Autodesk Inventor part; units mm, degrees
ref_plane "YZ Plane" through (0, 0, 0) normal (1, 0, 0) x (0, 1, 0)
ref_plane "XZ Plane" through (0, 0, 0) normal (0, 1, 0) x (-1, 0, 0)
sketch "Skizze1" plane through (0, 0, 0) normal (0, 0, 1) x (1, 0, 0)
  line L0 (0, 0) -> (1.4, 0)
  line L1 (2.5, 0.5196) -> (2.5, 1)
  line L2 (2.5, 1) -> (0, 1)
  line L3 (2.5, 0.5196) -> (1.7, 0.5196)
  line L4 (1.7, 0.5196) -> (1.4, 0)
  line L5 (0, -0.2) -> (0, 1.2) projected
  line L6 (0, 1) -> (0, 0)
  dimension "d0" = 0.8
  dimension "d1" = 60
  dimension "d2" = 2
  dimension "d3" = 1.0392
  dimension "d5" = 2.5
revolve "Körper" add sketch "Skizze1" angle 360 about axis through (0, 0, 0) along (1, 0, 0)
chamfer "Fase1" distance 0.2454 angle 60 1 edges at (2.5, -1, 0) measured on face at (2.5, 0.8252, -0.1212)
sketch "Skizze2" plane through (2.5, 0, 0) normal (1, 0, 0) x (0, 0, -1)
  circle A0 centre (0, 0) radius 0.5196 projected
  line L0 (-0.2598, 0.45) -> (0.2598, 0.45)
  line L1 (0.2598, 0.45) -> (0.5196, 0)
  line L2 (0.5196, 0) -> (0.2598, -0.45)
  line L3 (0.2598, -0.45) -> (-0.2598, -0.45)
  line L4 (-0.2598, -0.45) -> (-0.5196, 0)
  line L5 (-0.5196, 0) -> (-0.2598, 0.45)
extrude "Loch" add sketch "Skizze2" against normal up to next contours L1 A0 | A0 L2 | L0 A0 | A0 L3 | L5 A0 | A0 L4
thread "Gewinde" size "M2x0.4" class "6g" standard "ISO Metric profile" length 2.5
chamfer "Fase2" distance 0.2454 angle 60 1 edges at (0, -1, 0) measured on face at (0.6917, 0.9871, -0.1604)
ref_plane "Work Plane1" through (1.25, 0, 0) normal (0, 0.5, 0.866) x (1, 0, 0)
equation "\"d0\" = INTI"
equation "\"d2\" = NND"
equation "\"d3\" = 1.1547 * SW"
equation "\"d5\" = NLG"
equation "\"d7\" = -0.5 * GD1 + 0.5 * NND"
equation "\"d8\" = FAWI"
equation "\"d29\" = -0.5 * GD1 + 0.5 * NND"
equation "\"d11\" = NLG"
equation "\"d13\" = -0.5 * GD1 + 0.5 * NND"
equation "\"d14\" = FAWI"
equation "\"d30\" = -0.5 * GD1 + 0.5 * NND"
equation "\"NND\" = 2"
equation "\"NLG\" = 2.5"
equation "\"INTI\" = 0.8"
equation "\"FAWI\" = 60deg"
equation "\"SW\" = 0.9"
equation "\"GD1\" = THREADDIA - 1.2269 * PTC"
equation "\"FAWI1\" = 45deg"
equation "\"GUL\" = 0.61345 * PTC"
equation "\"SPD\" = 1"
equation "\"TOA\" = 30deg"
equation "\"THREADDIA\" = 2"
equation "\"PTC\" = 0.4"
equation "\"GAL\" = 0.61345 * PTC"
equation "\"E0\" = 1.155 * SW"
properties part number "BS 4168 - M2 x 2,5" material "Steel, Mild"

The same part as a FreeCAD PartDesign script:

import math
import FreeCAD as App
import Part
import Sketcher

V = App.Vector
Q = App.Units.Quantity


def edges_at(feature, points):
    """Names of the edges that pass closest to the given points."""
    edges = feature.Shape.Edges
    near = lambda p: min(range(len(edges)), key=lambda i: edges[i].distToShape(Part.Vertex(*p))[0])
    return sorted({f"Edge{near(p) + 1}" for p in points})


def add_polygon(sketch, points):
    """Adds a closed chain of lines whose ends are joined by coincident constraints."""
    first, n = sketch.GeometryCount, len(points)
    for a, b in zip(points, points[1:] + points[:1]):
        sketch.addGeometry(Part.LineSegment(App.Vector(*a, 0), App.Vector(*b, 0)), False)
    for i in range(n):
        sketch.addConstraint(Sketcher.Constraint("Coincident", first + i, 2, first + (i + 1) % n, 1))

doc = App.newDocument("Part")
params = doc.addObject("Spreadsheet::Sheet", "Params")
for row, (alias, value) in enumerate([
    ("sketch1_width", "0.8 mm"),
    ("sketch1_width2", "2.5 mm"),
    ("sketch1_height", "1 mm"),
    ("sketch1_width3", "1.4 mm"),
    ("revolution_angle", "360 deg"),
    ("chamfer_size", "0.2454 mm"),
    ("chamfer2_size", "0.2454 mm"),
], start=1):
    params.set(f"A{row}", alias)
    params.set(f"B{row}", "=" + value)
    params.setAlias(f"B{row}", alias)

body = doc.addObject("PartDesign::Body", "Body")

sketch1 = body.newObject("Sketcher::SketchObject", "Sketch")
sketch1.AttachmentSupport = (doc.getObject("XY_Plane"), [""])
sketch1.MapMode = "FlatFace"
add_polygon(sketch1, [(0, 1), (0, 0), (1.4, 0), (1.7, 0.5196), (2.5, 0.5196), (2.5, 1)])
sketch1.addConstraint(Sketcher.Constraint("Vertical", 0))
sketch1.addConstraint(Sketcher.Constraint("Horizontal", 1))
sketch1.addConstraint(Sketcher.Constraint("Horizontal", 3))
sketch1.addConstraint(Sketcher.Constraint("Vertical", 4))
sketch1.addConstraint(Sketcher.Constraint("Horizontal", 5))
sketch1.addConstraint(Sketcher.Constraint("Coincident", 0, 2, -1, 1))
sketch1.addConstraint(Sketcher.Constraint("DistanceX", 3, 1, 3, 2, 0.8))
sketch1.addConstraint(Sketcher.Constraint("DistanceX", 5, 2, 5, 1, 2.5))
sketch1.addConstraint(Sketcher.Constraint("DistanceY", 0, 2, 0, 1, 1.0))
sketch1.addConstraint(Sketcher.Constraint("Angle", 2, Q("59.9993 deg")))
sketch1.addConstraint(Sketcher.Constraint("DistanceX", 1, 1, 1, 2, 1.4))
sketch1.setExpression("Constraints[12]", "Params.sketch1_width")
sketch1.setExpression("Constraints[13]", "Params.sketch1_width2")
sketch1.setExpression("Constraints[14]", "Params.sketch1_height")
sketch1.setExpression("Constraints[16]", "Params.sketch1_width3")
revolution = body.newObject("PartDesign::Revolution", "Revolution")
revolution.Profile = sketch1
revolution.ReferenceAxis = (sketch1, ["H_Axis"])
revolution.setExpression("Angle", "Params.revolution_angle")
doc.recompute()

chamfer = body.newObject("PartDesign::Chamfer", "Chamfer")
chamfer.Base = (revolution, edges_at(revolution, [(2.5, -1, 0)]))
chamfer.ChamferType = "Distance and Angle"
chamfer.setExpression("Size", "Params.chamfer_size")
chamfer.Angle = 60

sketch2 = body.newObject("Sketcher::SketchObject", "Sketch001")
sketch2.AttachmentSupport = (doc.getObject("YZ_Plane"), [""])
sketch2.MapMode = "FlatFace"
sketch2.AttachmentOffset = App.Placement(V(0, 0, 2.5), App.Rotation())
sketch2.addGeometry(Part.LineSegment(V(0.45, -0.2598, 0), V(0, -0.5196, 0)), False)
sketch2.addGeometry(Part.ArcOfCircle(Part.Circle(V(0, 0, 0), V(0, 0, 1), 0.5196), math.radians(-90), math.radians(-29.999272)), False)
sketch2.addGeometry(Part.ArcOfCircle(Part.Circle(V(0, 0, 0), V(0, 0, 1), 0.5196), math.radians(-150.000728), math.radians(-90)), False)
sketch2.addGeometry(Part.LineSegment(V(0, -0.5196, 0), V(-0.45, -0.2598, 0)), False)
sketch2.addGeometry(Part.LineSegment(V(0.45, 0.2598, 0), V(0.45, -0.2598, 0)), False)
sketch2.addGeometry(Part.ArcOfCircle(Part.Circle(V(0, 0, 0), V(0, 0, 1), 0.5196), math.radians(-29.999272), math.radians(29.999272)), False)
sketch2.addGeometry(Part.ArcOfCircle(Part.Circle(V(0, 0, 0), V(0, 0, 1), 0.5196), math.radians(150.000728), math.radians(209.999272)), False)
sketch2.addGeometry(Part.LineSegment(V(-0.45, 0.2598, 0), V(-0.45, -0.2598, 0)), False)
sketch2.addGeometry(Part.LineSegment(V(0, 0.5196, 0), V(0.45, 0.2598, 0)), False)
sketch2.addGeometry(Part.ArcOfCircle(Part.Circle(V(0, 0, 0), V(0, 0, 1), 0.5196), math.radians(29.999272), math.radians(90)), False)
sketch2.addGeometry(Part.ArcOfCircle(Part.Circle(V(0, 0, 0), V(0, 0, 1), 0.5196), math.radians(90), math.radians(150.000728)), False)
sketch2.addGeometry(Part.LineSegment(V(0, 0.5196, 0), V(-0.45, 0.2598, 0)), False)
sketch2.addConstraint(Sketcher.Constraint("Coincident", 0, 1, 1, 2))
sketch2.addConstraint(Sketcher.Constraint("Coincident", 1, 1, 0, 2))
sketch2.addConstraint(Sketcher.Constraint("Coincident", 2, 1, 3, 2))
sketch2.addConstraint(Sketcher.Constraint("Coincident", 3, 1, 2, 2))
sketch2.addConstraint(Sketcher.Constraint("Coincident", 4, 1, 5, 2))
sketch2.addConstraint(Sketcher.Constraint("Coincident", 5, 1, 4, 2))
sketch2.addConstraint(Sketcher.Constraint("Coincident", 6, 1, 7, 1))
sketch2.addConstraint(Sketcher.Constraint("Coincident", 7, 2, 6, 2))
sketch2.addConstraint(Sketcher.Constraint("Coincident", 8, 1, 9, 2))
sketch2.addConstraint(Sketcher.Constraint("Coincident", 9, 1, 8, 2))
sketch2.addConstraint(Sketcher.Constraint("Coincident", 10, 1, 11, 1))
sketch2.addConstraint(Sketcher.Constraint("Coincident", 11, 2, 10, 2))
sketch2.addConstraint(Sketcher.Constraint("Vertical", 4))
sketch2.addConstraint(Sketcher.Constraint("Vertical", 7))
sketch2.addConstraint(Sketcher.Constraint("Coincident", 1, 3, -1, 1))
sketch2.addConstraint(Sketcher.Constraint("Coincident", 2, 3, -1, 1))
sketch2.addConstraint(Sketcher.Constraint("Coincident", 5, 3, -1, 1))
sketch2.addConstraint(Sketcher.Constraint("Coincident", 6, 3, -1, 1))
sketch2.addConstraint(Sketcher.Constraint("Coincident", 9, 3, -1, 1))
sketch2.addConstraint(Sketcher.Constraint("Coincident", 10, 3, -1, 1))
sketch2.addConstraint(Sketcher.Constraint("Coincident", 3, 1, 1, 1))
sketch2.addConstraint(Sketcher.Constraint("Coincident", 5, 1, 0, 1))
sketch2.addConstraint(Sketcher.Constraint("Coincident", 7, 2, 2, 1))
sketch2.addConstraint(Sketcher.Constraint("Coincident", 9, 1, 4, 1))
sketch2.addConstraint(Sketcher.Constraint("Coincident", 10, 1, 8, 1))
sketch2.addConstraint(Sketcher.Constraint("PointOnObject", 1, 1, -2))
sketch2.addConstraint(Sketcher.Constraint("PointOnObject", 8, 1, -2))
sketch2.addConstraint(Sketcher.Constraint("Parallel", 3, 8))
sketch2.addConstraint(Sketcher.Constraint("Parallel", 0, 11))
sketch2.addConstraint(Sketcher.Constraint("Angle", 0, Q("-150.0007 deg")))
sketch2.addConstraint(Sketcher.Constraint("Radius", 1, 0.5196))
pad1 = body.newObject("PartDesign::Pad", "Pad")
pad1.Profile = sketch2
pad1.Type = "UpToFirst"
pad1.Reversed = True
doc.recompute()

chamfer2 = body.newObject("PartDesign::Chamfer", "Chamfer001")
chamfer2.Base = (pad1, edges_at(pad1, [(0, -1, 0)]))
chamfer2.ChamferType = "Distance and Angle"
chamfer2.setExpression("Size", "Params.chamfer2_size")
chamfer2.Angle = 60

doc.recompute()
